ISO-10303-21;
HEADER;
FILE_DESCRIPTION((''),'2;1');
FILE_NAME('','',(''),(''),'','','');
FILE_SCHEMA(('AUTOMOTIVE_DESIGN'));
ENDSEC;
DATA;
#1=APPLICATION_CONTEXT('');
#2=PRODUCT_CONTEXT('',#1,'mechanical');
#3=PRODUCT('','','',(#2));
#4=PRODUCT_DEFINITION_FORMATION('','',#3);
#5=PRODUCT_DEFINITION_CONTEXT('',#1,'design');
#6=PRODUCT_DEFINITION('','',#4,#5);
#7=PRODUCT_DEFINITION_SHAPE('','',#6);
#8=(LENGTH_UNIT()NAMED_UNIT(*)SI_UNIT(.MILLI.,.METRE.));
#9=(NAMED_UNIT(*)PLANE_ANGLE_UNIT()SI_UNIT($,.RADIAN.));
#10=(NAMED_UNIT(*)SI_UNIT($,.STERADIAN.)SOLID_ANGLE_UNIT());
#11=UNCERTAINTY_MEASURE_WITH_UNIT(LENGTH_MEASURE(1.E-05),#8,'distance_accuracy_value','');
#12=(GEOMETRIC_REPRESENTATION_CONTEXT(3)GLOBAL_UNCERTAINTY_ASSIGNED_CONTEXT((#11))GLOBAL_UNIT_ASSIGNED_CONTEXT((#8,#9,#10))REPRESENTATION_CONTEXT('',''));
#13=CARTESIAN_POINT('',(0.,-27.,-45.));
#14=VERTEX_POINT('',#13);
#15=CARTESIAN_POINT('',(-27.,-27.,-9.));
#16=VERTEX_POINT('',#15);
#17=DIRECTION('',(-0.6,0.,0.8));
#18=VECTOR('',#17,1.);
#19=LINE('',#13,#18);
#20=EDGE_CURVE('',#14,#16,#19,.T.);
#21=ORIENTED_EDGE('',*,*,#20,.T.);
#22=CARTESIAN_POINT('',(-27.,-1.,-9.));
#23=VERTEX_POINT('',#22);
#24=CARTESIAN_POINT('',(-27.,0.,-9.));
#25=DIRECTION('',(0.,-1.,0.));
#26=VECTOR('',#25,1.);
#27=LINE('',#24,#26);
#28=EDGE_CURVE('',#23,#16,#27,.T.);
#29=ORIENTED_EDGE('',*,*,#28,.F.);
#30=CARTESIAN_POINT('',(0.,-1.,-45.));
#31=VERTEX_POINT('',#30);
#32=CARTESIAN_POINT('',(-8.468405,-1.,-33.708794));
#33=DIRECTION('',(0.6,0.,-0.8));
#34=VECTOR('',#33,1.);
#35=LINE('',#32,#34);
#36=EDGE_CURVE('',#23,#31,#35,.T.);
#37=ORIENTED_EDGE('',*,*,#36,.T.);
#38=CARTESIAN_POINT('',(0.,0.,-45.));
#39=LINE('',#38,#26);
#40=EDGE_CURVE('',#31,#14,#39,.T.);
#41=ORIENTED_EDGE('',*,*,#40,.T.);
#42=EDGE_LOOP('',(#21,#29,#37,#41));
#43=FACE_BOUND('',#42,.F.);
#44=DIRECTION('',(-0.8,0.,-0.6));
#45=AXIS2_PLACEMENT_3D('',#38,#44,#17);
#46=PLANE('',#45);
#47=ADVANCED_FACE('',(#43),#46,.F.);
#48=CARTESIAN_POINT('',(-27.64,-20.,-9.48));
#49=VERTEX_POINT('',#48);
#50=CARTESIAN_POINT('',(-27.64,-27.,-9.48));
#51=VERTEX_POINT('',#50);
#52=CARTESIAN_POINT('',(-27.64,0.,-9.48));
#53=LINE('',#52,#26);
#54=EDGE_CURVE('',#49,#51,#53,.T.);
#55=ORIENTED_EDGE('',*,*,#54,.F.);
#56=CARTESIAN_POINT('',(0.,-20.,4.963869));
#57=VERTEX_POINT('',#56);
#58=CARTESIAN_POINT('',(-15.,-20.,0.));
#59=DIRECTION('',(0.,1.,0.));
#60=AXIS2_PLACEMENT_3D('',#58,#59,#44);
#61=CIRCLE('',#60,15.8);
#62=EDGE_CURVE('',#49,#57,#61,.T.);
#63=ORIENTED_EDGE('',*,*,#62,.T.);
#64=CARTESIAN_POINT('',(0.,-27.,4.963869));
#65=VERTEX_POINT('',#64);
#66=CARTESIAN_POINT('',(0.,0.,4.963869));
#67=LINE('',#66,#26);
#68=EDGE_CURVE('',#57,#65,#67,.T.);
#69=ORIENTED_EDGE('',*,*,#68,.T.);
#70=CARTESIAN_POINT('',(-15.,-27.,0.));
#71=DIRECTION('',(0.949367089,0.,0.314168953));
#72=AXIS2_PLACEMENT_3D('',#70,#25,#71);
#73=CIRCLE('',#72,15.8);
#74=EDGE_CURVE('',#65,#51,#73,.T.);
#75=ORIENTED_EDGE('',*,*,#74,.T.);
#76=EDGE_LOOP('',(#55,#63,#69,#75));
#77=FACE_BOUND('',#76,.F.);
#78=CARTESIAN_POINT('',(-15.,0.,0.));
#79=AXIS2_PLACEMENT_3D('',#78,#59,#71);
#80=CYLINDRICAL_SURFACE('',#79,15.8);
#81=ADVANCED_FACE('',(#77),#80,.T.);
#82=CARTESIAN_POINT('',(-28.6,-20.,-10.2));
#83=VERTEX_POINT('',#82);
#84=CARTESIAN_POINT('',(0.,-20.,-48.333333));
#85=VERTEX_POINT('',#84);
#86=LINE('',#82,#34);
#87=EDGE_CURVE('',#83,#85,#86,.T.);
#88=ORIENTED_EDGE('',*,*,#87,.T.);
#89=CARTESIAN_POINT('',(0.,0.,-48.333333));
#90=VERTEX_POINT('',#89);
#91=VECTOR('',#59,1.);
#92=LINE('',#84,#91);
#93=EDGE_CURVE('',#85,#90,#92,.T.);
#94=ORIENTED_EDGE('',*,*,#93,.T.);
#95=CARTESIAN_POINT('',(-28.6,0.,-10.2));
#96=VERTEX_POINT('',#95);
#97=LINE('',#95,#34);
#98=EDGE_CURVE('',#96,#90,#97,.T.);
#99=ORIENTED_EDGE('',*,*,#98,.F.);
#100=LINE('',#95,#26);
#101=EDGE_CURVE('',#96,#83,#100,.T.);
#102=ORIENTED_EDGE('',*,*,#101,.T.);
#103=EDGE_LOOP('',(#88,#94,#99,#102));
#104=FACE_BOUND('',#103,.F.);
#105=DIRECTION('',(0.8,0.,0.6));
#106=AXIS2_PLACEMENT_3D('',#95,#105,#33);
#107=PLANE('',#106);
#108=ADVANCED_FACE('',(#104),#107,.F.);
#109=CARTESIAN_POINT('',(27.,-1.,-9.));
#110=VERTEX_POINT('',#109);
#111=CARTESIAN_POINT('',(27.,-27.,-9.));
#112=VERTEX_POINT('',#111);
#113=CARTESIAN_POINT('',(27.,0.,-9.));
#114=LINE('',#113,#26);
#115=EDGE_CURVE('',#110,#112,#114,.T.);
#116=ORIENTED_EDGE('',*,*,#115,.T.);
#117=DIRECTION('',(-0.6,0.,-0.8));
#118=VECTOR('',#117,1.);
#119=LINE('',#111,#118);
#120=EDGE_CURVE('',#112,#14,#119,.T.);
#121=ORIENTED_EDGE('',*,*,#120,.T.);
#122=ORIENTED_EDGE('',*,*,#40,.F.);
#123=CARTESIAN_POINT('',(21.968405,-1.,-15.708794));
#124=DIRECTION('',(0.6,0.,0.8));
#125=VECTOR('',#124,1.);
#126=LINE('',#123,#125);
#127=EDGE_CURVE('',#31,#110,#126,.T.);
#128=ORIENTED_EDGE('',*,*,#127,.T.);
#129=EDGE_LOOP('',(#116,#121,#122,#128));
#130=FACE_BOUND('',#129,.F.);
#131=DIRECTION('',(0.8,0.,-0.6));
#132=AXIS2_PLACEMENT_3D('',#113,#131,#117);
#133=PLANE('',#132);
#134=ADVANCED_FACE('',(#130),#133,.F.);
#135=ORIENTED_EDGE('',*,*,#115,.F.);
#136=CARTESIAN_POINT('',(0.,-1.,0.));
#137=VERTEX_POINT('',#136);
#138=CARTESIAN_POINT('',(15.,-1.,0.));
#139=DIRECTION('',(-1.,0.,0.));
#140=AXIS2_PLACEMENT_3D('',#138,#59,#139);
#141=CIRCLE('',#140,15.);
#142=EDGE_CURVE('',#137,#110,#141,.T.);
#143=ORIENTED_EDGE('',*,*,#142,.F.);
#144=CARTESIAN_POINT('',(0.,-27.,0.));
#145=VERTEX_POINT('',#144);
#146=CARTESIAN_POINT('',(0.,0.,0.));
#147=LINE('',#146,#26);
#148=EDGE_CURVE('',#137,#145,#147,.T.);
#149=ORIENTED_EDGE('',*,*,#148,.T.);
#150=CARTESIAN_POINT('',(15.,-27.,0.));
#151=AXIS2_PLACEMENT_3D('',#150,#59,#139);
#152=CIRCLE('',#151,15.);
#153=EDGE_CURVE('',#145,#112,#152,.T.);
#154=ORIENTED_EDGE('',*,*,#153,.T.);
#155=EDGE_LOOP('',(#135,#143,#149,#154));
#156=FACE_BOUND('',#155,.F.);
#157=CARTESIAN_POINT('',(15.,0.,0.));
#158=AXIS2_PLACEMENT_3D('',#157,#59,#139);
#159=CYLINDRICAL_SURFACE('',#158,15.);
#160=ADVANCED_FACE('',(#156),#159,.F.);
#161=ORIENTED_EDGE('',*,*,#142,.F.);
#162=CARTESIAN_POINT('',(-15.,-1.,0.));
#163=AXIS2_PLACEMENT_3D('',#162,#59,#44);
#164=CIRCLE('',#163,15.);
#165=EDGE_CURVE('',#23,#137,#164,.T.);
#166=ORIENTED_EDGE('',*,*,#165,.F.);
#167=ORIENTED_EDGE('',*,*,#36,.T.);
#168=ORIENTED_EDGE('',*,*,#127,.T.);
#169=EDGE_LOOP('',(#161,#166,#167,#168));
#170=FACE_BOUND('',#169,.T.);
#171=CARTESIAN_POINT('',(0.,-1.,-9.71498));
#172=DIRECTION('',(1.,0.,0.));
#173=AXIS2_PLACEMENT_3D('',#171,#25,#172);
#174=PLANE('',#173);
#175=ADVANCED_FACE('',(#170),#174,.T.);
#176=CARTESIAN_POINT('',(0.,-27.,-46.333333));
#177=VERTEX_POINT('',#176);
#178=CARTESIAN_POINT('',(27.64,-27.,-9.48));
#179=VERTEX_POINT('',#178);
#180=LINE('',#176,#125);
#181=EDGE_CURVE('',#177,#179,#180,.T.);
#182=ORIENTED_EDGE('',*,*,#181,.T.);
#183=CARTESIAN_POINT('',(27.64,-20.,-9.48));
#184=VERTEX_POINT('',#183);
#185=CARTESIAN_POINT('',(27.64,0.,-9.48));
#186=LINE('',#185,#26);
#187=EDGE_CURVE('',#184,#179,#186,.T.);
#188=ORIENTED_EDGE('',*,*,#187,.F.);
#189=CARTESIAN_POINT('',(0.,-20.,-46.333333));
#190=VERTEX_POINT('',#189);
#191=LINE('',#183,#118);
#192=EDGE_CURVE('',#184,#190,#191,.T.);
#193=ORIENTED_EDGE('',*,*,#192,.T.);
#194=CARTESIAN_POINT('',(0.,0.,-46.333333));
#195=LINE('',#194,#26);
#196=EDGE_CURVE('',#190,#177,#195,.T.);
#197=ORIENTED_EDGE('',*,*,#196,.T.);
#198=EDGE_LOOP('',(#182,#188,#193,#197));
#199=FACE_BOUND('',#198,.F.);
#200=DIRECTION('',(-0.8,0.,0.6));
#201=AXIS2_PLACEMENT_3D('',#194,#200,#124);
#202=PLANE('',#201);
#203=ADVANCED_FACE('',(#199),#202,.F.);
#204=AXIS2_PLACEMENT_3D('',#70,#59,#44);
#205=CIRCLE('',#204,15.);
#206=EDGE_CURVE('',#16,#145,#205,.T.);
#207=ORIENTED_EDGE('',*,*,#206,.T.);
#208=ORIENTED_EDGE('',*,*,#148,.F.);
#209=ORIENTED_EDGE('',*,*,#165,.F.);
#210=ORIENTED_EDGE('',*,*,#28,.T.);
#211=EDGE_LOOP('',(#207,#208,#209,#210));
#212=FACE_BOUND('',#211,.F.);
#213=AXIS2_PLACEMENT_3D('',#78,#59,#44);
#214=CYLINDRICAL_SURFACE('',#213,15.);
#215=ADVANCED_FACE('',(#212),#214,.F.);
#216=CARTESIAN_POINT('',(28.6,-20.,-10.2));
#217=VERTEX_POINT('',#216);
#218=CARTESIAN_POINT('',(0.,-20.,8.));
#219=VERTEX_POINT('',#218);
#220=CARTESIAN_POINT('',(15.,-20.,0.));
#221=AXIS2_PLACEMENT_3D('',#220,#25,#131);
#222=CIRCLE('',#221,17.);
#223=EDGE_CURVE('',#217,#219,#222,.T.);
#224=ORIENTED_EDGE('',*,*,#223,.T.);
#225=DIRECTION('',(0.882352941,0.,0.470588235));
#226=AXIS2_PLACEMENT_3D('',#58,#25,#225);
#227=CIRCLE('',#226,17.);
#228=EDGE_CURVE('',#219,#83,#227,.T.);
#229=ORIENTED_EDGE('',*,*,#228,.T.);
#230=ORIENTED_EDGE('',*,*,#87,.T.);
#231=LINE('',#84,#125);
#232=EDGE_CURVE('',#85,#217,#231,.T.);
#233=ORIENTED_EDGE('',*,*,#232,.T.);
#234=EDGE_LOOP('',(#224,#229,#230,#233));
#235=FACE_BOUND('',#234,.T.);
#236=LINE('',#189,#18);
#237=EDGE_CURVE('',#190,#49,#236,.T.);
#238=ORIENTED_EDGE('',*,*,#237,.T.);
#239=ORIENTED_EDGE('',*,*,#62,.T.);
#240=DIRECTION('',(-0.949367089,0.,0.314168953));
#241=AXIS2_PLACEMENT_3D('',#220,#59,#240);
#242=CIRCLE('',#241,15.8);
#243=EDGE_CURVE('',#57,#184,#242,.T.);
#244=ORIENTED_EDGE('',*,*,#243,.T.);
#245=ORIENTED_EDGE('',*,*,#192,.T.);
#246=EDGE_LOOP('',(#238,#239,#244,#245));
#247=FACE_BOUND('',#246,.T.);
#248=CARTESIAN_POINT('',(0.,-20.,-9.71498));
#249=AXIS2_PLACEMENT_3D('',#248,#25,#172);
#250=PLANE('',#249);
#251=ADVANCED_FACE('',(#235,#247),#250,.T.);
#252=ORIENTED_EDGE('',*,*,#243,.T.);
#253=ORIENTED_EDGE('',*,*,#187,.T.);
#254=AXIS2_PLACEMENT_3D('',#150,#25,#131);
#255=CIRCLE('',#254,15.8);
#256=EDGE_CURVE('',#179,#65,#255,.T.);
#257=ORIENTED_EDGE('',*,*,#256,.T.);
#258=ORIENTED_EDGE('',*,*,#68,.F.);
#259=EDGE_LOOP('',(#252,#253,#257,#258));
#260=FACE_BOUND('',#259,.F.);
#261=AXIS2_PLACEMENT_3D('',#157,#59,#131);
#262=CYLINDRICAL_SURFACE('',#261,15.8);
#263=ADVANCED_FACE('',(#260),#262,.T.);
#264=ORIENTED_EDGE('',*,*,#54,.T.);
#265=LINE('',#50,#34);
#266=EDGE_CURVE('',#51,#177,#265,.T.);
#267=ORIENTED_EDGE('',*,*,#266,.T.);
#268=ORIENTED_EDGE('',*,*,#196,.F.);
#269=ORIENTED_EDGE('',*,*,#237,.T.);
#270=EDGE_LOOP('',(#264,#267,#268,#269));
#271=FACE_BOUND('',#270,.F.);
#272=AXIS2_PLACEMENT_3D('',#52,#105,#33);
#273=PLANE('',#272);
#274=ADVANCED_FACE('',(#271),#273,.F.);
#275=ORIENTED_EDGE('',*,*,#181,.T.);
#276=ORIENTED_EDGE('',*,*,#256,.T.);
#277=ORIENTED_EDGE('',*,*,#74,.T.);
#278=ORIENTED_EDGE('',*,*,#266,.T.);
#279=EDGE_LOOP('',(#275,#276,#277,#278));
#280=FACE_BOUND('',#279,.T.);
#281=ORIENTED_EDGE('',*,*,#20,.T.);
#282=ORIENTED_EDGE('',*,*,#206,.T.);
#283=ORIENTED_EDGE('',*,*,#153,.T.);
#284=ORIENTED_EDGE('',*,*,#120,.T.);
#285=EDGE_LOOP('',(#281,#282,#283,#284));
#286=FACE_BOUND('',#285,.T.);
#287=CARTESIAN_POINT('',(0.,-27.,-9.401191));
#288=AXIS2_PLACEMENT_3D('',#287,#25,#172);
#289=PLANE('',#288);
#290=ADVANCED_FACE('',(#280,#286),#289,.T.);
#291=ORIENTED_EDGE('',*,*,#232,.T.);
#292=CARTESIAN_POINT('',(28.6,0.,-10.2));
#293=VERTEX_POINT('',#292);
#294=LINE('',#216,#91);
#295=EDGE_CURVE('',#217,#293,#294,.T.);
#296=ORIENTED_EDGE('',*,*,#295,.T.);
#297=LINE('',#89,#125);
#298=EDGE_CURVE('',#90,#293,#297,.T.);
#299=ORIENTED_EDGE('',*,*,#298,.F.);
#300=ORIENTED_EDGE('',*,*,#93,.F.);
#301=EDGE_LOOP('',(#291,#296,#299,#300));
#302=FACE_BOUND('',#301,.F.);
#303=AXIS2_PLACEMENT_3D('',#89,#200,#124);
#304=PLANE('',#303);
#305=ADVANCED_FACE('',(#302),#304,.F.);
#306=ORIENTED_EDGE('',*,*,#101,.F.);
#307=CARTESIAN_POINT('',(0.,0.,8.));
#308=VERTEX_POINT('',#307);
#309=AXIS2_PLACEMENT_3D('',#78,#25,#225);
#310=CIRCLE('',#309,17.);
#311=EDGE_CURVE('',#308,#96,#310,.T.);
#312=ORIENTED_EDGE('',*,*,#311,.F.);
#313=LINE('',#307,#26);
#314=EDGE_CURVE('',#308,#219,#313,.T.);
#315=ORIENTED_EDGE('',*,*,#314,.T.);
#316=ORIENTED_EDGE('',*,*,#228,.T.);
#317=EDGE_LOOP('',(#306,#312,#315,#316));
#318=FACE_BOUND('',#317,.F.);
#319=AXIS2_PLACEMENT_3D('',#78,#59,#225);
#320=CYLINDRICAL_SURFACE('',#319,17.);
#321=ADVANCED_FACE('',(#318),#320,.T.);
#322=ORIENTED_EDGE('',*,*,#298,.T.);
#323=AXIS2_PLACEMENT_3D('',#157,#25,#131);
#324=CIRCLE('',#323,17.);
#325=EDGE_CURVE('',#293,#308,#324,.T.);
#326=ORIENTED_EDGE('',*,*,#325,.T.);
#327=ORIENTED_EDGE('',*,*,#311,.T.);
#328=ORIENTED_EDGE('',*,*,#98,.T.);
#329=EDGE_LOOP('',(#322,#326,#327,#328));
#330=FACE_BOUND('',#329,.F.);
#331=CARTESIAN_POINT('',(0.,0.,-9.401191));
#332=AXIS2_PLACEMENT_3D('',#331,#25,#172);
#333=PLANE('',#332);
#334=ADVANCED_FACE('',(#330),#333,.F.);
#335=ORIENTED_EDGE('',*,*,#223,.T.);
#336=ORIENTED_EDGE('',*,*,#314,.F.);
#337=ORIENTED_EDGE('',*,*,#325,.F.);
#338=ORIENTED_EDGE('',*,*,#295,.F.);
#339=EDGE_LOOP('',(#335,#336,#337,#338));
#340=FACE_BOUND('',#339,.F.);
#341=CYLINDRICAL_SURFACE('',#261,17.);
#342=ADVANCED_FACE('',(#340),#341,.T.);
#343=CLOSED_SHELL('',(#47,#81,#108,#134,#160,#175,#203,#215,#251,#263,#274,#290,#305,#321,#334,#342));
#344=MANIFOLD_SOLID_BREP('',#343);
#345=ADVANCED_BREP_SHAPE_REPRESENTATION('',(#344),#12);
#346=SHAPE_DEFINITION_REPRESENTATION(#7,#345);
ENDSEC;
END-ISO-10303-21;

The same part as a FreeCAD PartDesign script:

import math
import FreeCAD as App
import Part
import Sketcher

V = App.Vector
Q = App.Units.Quantity

doc = App.newDocument("Part")
body = doc.addObject("PartDesign::Body", "Body")

# Sketch on XZ plane
sketch1 = body.newObject("Sketcher::SketchObject", "Sketch")
sketch1.AttachmentSupport = (doc.getObject("XZ_Plane"), [""])
sketch1.MapMode = "FlatFace"
sketch1.addGeometry(Part.ArcOfCircle(Part.Circle(V(15, 0, 0), V(0, 0, 1), 17), math.radians(-37), math.radians(152)), False)
sketch1.addGeometry(Part.ArcOfCircle(Part.Circle(V(-15, 0, 0), V(0, 0, 1), 17), math.radians(28), math.radians(217)), False)
sketch1.addGeometry(Part.LineSegment(V(-29, -10, 0), V(0, -48, 0)), False)
sketch1.addGeometry(Part.LineSegment(V(0, -48, 0), V(29, -10, 0)), False)
sketch1.addConstraint(Sketcher.Constraint("Coincident", 0, 2, 1, 1))
sketch1.addConstraint(Sketcher.Constraint("Tangent", 1, 2, 2, 1))
sketch1.addConstraint(Sketcher.Constraint("Coincident", 2, 2, 3, 1))
sketch1.addConstraint(Sketcher.Constraint("Tangent", 3, 2, 0, 1))
sketch1.addConstraint(Sketcher.Constraint("Equal", 0, 1))
sketch1.addConstraint(Sketcher.Constraint("Symmetric", 0, 3, 1, 3, -1, 1))
sketch1.addConstraint(Sketcher.Constraint("Symmetric", 1, 2, 3, 2, -2))
sketch1.addConstraint(Sketcher.Constraint("Radius", 0, Q("17 mm")))
sketch1.addConstraint(Sketcher.Constraint("DistanceX", -1, 1, 0, 3, Q("15 mm")))
sketch1.addConstraint(Sketcher.Constraint("DistanceX", 1, 2, -1, 1, Q("28.6 mm")))
pad1 = body.newObject("PartDesign::Pad", "Pad")
pad1.Profile = sketch1
pad1.Length = 1

# Sketch on XZ plane
sketch2 = body.newObject("Sketcher::SketchObject", "Sketch001")
sketch2.AttachmentSupport = (doc.getObject("XZ_Plane"), [""])
sketch2.MapMode = "FlatFace"
sketch2.addGeometry(Part.ArcOfCircle(Part.Circle(V(15, 0, 0), V(0, 0, 1), 17), math.radians(-37), math.radians(152)), False)
sketch2.addGeometry(Part.ArcOfCircle(Part.Circle(V(-15, 0, 0), V(0, 0, 1), 17), math.radians(28), math.radians(217)), False)
sketch2.addGeometry(Part.LineSegment(V(-29, -10, 0), V(0, -48, 0)), False)
sketch2.addGeometry(Part.LineSegment(V(0, -48, 0), V(29, -10, 0)), False)
sketch2.addGeometry(Part.LineSegment(V(0, -46, 0), V(-28, -9, 0)), False)
sketch2.addGeometry(Part.ArcOfCircle(Part.Circle(V(-15, 0, 0), V(0, 0, 1), 16), math.radians(18), math.radians(217)), False)
sketch2.addGeometry(Part.ArcOfCircle(Part.Circle(V(15, 0, 0), V(0, 0, 1), 16), math.radians(-37), math.radians(162)), False)
sketch2.addGeometry(Part.LineSegment(V(28, -9, 0), V(0, -46, 0)), False)
sketch2.addConstraint(Sketcher.Constraint("Coincident", 0, 2, 1, 1))
sketch2.addConstraint(Sketcher.Constraint("Tangent", 1, 2, 2, 1))
sketch2.addConstraint(Sketcher.Constraint("Coincident", 2, 2, 3, 1))
sketch2.addConstraint(Sketcher.Constraint("Tangent", 3, 2, 0, 1))
sketch2.addConstraint(Sketcher.Constraint("Tangent", 4, 2, 5, 2))
sketch2.addConstraint(Sketcher.Constraint("Coincident", 5, 1, 6, 2))
sketch2.addConstraint(Sketcher.Constraint("Tangent", 6, 1, 7, 1))
sketch2.addConstraint(Sketcher.Constraint("Coincident", 7, 2, 4, 1))
sketch2.addConstraint(Sketcher.Constraint("Coincident", 5, 3, 1, 3))
sketch2.addConstraint(Sketcher.Constraint("Coincident", 6, 3, 0, 3))
sketch2.addConstraint(Sketcher.Constraint("Equal", 0, 1))
sketch2.addConstraint(Sketcher.Constraint("Equal", 5, 6))
sketch2.addConstraint(Sketcher.Constraint("Symmetric", 0, 3, 1, 3, -1, 1))
sketch2.addConstraint(Sketcher.Constraint("Symmetric", 1, 2, 3, 2, -2))
sketch2.addConstraint(Sketcher.Constraint("PointOnObject", 7, 2, -2))
sketch2.addConstraint(Sketcher.Constraint("Parallel", 2, 4))
sketch2.addConstraint(Sketcher.Constraint("Radius", 0, Q("17 mm")))
sketch2.addConstraint(Sketcher.Constraint("Radius", 5, Q("15.8 mm")))
sketch2.addConstraint(Sketcher.Constraint("DistanceX", -1, 1, 0, 3, Q("15 mm")))
sketch2.addConstraint(Sketcher.Constraint("DistanceY", 2, 2, 7, 2, Q("2 mm")))
pad2 = body.newObject("PartDesign::Pad", "Pad001")
pad2.Profile = sketch2
pad2.Length = 20

# Sketch on XZ plane
sketch3 = body.newObject("Sketcher::SketchObject", "Sketch002")
sketch3.AttachmentSupport = (doc.getObject("XZ_Plane"), [""])
sketch3.MapMode = "FlatFace"
sketch3.addGeometry(Part.ArcOfCircle(Part.Circle(V(15, 0, 0), V(0, 0, 1), 16), math.radians(-37), math.radians(162)), False)
sketch3.addGeometry(Part.ArcOfCircle(Part.Circle(V(-15, 0, 0), V(0, 0, 1), 16), math.radians(18), math.radians(217)), False)
sketch3.addGeometry(Part.LineSegment(V(-28, -9, 0), V(0, -46, 0)), False)
sketch3.addGeometry(Part.LineSegment(V(0, -46, 0), V(28, -9, 0)), False)
sketch3.addGeometry(Part.LineSegment(V(0, -45, 0), V(-27, -9, 0)), False)
sketch3.addGeometry(Part.ArcOfCircle(Part.Circle(V(-15, 0, 0), V(0, 0, 1), 15), math.radians(0), math.radians(217)), False)
sketch3.addGeometry(Part.ArcOfCircle(Part.Circle(V(15, 0, 0), V(0, 0, 1), 15), math.radians(-37), math.radians(180)), False)
sketch3.addGeometry(Part.LineSegment(V(27, -9, 0), V(0, -45, 0)), False)
sketch3.addConstraint(Sketcher.Constraint("Coincident", 0, 2, 1, 1))
sketch3.addConstraint(Sketcher.Constraint("Tangent", 1, 2, 2, 1))
sketch3.addConstraint(Sketcher.Constraint("Coincident", 2, 2, 3, 1))
sketch3.addConstraint(Sketcher.Constraint("Tangent", 3, 2, 0, 1))
sketch3.addConstraint(Sketcher.Constraint("Tangent", 4, 2, 5, 2))
sketch3.addConstraint(Sketcher.Constraint("Tangent", 5, 1, 6, 2))
sketch3.addConstraint(Sketcher.Constraint("Tangent", 6, 1, 7, 1))
sketch3.addConstraint(Sketcher.Constraint("Coincident", 7, 2, 4, 1))
sketch3.addConstraint(Sketcher.Constraint("Coincident", 5, 1, -1, 1))
sketch3.addConstraint(Sketcher.Constraint("Coincident", 5, 3, 1, 3))
sketch3.addConstraint(Sketcher.Constraint("Coincident", 6, 3, 0, 3))
sketch3.addConstraint(Sketcher.Constraint("Equal", 0, 1))
sketch3.addConstraint(Sketcher.Constraint("Equal", 5, 6))
sketch3.addConstraint(Sketcher.Constraint("Symmetric", 1, 2, 3, 2, -2))
sketch3.addConstraint(Sketcher.Constraint("PointOnObject", 7, 2, -2))
sketch3.addConstraint(Sketcher.Constraint("Parallel", 2, 4))
sketch3.addConstraint(Sketcher.Constraint("Radius", 5, Q("15 mm")))
sketch3.addConstraint(Sketcher.Constraint("Radius", 0, Q("15.8 mm")))
sketch3.addConstraint(Sketcher.Constraint("Distance", 4, Q("45 mm")))
pad3 = body.newObject("PartDesign::Pad", "Pad002")
pad3.Profile = sketch3
pad3.Length = 27

doc.recompute()
